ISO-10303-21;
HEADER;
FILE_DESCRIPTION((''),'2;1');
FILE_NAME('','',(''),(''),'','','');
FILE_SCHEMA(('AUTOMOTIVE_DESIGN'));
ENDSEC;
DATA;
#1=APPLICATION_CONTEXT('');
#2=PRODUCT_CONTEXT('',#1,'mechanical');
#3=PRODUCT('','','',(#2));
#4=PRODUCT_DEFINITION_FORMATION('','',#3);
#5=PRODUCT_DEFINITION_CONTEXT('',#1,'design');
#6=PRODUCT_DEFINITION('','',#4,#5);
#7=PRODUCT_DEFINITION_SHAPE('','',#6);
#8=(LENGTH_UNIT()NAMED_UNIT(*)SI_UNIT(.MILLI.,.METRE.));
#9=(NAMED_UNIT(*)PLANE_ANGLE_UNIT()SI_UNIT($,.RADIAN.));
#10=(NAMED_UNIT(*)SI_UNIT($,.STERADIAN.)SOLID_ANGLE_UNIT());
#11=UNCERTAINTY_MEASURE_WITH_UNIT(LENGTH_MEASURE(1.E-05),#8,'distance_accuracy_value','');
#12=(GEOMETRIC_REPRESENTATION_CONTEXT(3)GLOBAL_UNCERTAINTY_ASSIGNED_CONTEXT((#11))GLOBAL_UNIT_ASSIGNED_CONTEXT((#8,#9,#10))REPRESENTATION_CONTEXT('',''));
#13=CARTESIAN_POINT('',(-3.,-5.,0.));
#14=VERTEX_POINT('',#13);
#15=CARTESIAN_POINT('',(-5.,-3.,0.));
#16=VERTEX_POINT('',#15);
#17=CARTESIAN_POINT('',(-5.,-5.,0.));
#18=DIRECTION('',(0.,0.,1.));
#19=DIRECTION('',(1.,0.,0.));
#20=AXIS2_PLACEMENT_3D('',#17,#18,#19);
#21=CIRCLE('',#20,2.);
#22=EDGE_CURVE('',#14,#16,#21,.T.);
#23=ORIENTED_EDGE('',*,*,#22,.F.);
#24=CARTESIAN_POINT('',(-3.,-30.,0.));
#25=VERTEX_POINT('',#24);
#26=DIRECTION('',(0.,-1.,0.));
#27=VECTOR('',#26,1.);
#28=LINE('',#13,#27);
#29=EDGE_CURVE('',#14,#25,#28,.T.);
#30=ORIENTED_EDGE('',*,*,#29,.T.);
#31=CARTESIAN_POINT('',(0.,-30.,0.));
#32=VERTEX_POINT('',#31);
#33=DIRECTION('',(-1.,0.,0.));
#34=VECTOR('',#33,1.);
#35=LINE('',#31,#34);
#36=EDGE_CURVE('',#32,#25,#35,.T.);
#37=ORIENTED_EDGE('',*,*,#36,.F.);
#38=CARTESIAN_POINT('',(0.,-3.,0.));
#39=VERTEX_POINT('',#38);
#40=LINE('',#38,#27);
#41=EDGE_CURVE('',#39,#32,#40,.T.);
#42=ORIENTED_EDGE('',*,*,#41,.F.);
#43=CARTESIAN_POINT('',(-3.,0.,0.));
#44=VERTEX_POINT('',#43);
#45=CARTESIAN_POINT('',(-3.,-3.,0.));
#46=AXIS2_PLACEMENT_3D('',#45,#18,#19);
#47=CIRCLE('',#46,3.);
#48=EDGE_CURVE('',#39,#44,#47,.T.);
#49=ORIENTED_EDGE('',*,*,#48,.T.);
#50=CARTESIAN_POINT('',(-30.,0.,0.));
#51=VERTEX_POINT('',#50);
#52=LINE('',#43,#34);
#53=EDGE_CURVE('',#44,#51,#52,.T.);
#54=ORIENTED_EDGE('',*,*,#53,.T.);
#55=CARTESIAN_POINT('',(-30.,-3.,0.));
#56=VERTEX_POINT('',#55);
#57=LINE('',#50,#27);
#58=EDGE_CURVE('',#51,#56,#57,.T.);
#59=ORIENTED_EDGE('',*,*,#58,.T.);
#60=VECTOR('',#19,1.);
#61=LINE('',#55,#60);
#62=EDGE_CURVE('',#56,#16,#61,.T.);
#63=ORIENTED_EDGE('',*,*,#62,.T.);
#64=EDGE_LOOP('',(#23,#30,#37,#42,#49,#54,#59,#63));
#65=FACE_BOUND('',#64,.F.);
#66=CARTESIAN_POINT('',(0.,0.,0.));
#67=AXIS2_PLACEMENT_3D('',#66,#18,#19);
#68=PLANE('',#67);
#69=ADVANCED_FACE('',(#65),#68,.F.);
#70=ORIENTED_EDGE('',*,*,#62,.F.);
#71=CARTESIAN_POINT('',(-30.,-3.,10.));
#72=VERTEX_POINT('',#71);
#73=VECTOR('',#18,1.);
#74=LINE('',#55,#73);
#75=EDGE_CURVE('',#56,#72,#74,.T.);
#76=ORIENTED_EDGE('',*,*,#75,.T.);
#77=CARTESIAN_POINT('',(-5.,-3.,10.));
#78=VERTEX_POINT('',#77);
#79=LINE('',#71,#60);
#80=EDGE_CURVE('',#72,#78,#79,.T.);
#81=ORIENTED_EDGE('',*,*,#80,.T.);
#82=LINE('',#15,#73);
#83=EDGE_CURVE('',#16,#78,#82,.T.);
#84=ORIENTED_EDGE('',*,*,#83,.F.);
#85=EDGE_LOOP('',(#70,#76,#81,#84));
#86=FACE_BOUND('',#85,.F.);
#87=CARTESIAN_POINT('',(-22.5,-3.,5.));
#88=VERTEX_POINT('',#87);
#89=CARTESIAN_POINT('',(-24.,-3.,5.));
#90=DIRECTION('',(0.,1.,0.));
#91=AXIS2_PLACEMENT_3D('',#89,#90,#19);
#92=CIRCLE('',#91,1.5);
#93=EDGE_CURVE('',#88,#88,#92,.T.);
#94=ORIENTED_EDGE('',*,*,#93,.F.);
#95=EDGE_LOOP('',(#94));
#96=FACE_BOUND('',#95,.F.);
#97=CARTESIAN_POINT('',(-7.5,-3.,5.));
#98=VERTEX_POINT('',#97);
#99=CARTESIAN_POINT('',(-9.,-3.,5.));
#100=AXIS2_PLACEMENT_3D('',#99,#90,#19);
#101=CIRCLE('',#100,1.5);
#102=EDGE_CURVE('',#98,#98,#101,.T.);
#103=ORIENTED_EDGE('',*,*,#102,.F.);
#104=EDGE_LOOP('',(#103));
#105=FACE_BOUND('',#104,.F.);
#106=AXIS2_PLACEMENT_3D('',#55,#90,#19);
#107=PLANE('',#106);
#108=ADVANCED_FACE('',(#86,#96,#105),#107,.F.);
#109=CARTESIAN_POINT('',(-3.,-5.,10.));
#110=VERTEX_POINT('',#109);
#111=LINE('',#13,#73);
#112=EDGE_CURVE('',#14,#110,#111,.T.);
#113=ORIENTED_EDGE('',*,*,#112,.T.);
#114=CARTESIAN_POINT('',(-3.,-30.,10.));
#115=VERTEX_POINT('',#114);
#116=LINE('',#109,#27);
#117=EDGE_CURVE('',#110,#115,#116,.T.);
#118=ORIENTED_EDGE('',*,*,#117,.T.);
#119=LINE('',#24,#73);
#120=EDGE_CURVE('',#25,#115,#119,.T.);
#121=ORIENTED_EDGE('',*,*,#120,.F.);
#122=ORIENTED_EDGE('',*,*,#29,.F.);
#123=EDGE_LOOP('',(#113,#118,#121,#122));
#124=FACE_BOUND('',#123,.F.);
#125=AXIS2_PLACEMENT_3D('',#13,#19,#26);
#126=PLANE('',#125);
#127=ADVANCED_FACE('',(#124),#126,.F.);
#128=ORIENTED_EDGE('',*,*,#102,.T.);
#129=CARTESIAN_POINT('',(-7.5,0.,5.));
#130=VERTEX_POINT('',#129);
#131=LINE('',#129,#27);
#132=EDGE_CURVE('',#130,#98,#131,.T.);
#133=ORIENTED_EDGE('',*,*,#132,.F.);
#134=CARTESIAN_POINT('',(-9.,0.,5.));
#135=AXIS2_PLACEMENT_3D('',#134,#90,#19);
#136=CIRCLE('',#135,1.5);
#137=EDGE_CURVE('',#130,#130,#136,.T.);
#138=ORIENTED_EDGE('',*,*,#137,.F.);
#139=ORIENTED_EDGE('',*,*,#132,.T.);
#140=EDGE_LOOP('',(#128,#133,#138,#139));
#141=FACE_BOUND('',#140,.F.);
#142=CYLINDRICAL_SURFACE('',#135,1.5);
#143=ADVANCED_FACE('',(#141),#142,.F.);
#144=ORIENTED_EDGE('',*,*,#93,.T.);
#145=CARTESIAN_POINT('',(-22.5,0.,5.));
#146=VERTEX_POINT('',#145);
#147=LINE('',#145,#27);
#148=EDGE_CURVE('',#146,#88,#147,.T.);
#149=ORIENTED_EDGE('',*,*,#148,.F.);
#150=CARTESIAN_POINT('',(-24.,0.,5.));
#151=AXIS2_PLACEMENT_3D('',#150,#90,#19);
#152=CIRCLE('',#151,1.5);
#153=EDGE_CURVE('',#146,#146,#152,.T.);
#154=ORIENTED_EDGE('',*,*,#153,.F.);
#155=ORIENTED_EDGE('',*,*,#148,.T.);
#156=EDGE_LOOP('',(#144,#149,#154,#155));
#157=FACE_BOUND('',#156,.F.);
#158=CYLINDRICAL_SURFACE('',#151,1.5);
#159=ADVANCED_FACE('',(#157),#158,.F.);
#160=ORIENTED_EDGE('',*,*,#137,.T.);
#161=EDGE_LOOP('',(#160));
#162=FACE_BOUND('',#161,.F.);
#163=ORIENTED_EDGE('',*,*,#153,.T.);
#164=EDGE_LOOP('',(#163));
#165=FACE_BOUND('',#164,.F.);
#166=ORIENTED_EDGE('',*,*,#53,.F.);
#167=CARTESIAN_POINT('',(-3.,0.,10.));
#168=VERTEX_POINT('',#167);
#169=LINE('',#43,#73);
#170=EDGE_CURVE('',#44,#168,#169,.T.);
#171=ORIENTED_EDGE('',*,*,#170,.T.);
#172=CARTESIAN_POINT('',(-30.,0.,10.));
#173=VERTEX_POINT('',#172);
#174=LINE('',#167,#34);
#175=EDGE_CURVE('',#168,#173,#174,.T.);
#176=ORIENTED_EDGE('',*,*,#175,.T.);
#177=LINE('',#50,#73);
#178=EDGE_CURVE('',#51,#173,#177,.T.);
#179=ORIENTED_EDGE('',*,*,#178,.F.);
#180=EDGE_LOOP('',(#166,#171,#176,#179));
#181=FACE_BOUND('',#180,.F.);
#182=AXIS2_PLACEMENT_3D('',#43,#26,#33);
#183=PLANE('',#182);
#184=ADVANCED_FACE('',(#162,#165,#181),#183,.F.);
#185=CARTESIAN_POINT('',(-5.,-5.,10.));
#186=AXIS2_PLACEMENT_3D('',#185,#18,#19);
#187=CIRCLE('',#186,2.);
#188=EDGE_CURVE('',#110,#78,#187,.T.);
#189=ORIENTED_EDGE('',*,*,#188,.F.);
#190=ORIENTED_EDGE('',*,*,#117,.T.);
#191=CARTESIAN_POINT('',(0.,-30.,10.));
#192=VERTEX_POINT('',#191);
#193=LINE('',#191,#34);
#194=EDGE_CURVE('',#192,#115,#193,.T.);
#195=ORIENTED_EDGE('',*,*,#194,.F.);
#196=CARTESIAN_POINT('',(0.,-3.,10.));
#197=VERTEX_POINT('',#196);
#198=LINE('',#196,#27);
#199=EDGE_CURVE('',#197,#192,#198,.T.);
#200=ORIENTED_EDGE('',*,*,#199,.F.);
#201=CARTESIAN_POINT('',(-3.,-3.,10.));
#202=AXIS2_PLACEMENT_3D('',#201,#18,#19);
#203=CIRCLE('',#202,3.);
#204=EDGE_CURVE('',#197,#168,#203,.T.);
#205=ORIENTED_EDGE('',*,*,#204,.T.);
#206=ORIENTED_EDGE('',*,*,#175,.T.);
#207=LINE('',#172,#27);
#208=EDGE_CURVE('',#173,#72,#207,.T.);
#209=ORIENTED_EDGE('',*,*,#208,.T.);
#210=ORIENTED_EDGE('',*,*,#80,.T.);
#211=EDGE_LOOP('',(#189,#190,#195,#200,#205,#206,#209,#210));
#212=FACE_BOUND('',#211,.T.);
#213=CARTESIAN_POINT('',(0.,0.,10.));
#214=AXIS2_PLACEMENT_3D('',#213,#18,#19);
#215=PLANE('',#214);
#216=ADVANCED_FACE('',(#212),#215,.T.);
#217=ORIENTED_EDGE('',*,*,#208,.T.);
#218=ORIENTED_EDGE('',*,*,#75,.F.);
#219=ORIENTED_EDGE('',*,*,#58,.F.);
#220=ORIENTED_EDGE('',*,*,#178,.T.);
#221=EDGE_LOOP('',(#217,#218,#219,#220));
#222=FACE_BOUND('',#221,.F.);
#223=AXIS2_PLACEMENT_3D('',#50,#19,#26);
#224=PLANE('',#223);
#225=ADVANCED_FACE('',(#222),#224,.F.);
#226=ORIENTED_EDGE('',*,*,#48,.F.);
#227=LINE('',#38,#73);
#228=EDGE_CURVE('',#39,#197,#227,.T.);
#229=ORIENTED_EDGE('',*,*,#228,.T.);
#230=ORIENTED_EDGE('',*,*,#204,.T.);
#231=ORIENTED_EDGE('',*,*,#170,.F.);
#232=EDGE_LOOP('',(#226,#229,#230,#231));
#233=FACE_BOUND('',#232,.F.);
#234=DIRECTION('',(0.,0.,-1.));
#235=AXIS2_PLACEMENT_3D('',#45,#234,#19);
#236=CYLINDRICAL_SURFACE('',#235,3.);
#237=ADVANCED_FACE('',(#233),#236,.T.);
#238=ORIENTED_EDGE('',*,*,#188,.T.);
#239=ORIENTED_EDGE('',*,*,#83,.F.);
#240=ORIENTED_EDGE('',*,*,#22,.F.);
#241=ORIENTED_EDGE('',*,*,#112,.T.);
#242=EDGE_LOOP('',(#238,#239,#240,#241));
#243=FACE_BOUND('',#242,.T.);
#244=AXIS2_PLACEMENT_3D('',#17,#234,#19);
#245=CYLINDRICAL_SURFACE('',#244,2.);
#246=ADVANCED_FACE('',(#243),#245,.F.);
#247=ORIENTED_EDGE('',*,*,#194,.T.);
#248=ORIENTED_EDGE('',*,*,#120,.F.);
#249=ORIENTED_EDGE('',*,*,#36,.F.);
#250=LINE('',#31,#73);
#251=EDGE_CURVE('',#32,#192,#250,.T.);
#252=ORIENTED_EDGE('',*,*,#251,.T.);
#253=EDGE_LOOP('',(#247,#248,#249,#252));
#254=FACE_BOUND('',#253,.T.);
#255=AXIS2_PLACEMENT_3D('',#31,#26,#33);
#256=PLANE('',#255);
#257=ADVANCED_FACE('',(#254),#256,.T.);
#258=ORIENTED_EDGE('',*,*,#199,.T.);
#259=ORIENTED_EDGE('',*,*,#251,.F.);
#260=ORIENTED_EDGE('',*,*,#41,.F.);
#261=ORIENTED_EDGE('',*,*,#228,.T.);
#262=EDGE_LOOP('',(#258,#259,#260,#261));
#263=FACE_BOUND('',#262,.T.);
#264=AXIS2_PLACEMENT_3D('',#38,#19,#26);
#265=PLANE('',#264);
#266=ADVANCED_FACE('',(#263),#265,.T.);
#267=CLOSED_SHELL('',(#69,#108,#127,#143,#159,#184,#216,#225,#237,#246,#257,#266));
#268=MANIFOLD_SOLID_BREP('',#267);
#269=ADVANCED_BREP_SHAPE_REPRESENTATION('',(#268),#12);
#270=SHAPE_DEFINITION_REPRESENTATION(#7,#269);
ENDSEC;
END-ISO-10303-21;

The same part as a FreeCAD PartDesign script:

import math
import FreeCAD as App
import Part
import Sketcher
Q = App.Units.Quantity

doc = App.newDocument("Part")
body = doc.addObject("PartDesign::Body", "Body")

sketch1 = body.newObject("Sketcher::SketchObject", "Sketch")
sketch1.AttachmentSupport = (doc.getObject("XY_Plane"), [""])
sketch1.MapMode = "FlatFace"
sketch1.addGeometry([
    Part.LineSegment(App.Vector(0, -30, 0), App.Vector(0, -3, 0)),
    Part.ArcOfCircle(Part.Circle(App.Vector(-3, -3, 0), App.Vector(0, 0, 1), 3), math.radians(0), math.radians(90)),
    Part.LineSegment(App.Vector(-3, 0, 0), App.Vector(-30, 0, 0)),
    Part.LineSegment(App.Vector(-30, 0, 0), App.Vector(-30, -3, 0)),
    Part.LineSegment(App.Vector(-30, -3, 0), App.Vector(-5, -3, 0)),
    Part.ArcOfCircle(Part.Circle(App.Vector(-5, -5, 0), App.Vector(0, 0, 1), 2), math.radians(0), math.radians(90)),
    Part.LineSegment(App.Vector(-3, -5, 0), App.Vector(-3, -30, 0)),
    Part.LineSegment(App.Vector(-3, -30, 0), App.Vector(0, -30, 0)),
], False)
sketch1.addConstraint([
    Sketcher.Constraint("Tangent", 0, 2, 1, 1),
    Sketcher.Constraint("Tangent", 1, 2, 2, 1),
    Sketcher.Constraint("Coincident", 2, 2, 3, 1),
    Sketcher.Constraint("Coincident", 3, 2, 4, 1),
    Sketcher.Constraint("Tangent", 4, 2, 5, 2),
    Sketcher.Constraint("Tangent", 5, 1, 6, 1),
    Sketcher.Constraint("Coincident", 6, 2, 7, 1),
    Sketcher.Constraint("Coincident", 7, 2, 0, 1),
    Sketcher.Constraint("Vertical", 0),
    Sketcher.Constraint("Horizontal", 2),
    Sketcher.Constraint("Vertical", 3),
    Sketcher.Constraint("Horizontal", 4),
    Sketcher.Constraint("Vertical", 6),
    Sketcher.Constraint("Horizontal", 7),
    Sketcher.Constraint("PointOnObject", 0, 2, -2),
    Sketcher.Constraint("PointOnObject", 1, 2, -1),
    Sketcher.Constraint("Horizontal", 0, 2, 3, 2),
    Sketcher.Constraint("Vertical", 1, 2, 5, 1),
    Sketcher.Constraint("Equal", 2, 0),
    Sketcher.Constraint("Radius", 1, Q("3 mm")),
    Sketcher.Constraint("Radius", 5, Q("2 mm")),
    Sketcher.Constraint("DistanceX", 2, 2, -1, 1, Q("30 mm")),
])
pad1 = body.newObject("PartDesign::Pad", "Pad")
pad1.Profile = sketch1
pad1.Length = 10

sketch2 = body.newObject("Sketcher::SketchObject", "Sketch001")
sketch2.AttachmentSupport = (doc.getObject("XZ_Plane"), [""])
sketch2.MapMode = "FlatFace"
sketch2.addGeometry([
    Part.Circle(App.Vector(-24, 5, 0), App.Vector(0, 0, 1), 1.5),
    Part.Circle(App.Vector(-9, 5, 0), App.Vector(0, 0, 1), 1.5),
], False)
sketch2.addConstraint([
    Sketcher.Constraint("Equal", 0, 1),
    Sketcher.Constraint("Horizontal", 0, 3, 1, 3),
    Sketcher.Constraint("Diameter", 0, Q("3 mm")),
    Sketcher.Constraint("DistanceX", 0, 3, 1, 3, Q("15 mm")),
    Sketcher.Constraint("DistanceX", 0, 3, -1, 1, Q("24 mm")),
    Sketcher.Constraint("DistanceY", -1, 1, 0, 3, Q("5 mm")),
])
pocket1 = body.newObject("PartDesign::Pocket", "Pocket")
pocket1.Profile = sketch2
pocket1.Length = 3
pocket1.Reversed = True

doc.recompute()
